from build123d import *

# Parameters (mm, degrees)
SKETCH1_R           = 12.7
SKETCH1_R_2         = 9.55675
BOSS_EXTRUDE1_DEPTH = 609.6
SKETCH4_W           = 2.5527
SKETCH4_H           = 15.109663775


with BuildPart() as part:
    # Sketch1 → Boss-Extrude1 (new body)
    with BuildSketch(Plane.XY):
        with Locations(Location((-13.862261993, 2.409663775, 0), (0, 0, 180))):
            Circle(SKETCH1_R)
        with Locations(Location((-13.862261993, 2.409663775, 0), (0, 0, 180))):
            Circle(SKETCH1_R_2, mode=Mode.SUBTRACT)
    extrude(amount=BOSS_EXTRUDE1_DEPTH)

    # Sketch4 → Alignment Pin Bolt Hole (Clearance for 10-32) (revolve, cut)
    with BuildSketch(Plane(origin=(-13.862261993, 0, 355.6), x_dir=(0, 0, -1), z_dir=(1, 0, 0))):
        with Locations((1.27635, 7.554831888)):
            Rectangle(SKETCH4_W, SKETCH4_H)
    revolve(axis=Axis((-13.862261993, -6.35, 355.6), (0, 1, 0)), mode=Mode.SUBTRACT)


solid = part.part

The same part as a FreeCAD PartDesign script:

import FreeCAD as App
import Part
import Sketcher

V = App.Vector
Q = App.Units.Quantity

doc = App.newDocument("Part")
body = doc.addObject("PartDesign::Body", "Body")

sketch1 = body.newObject("Sketcher::SketchObject", "Sketch")
sketch1.AttachmentSupport = (doc.getObject("XY_Plane"), [""])
sketch1.MapMode = "FlatFace"
sketch1.addGeometry([
    Part.Circle(V(-14, 2, 0), V(0, 0, 1), 13),
    Part.Circle(V(-14, 2, 0), V(0, 0, 1), 10),
], False)
sketch1.addConstraint([
    Sketcher.Constraint("Coincident", 1, 3, 0, 3),
    Sketcher.Constraint("Diameter", 0, Q("1 in")),
    Sketcher.Constraint("Diameter", 1, Q("0.7525 in")),
    Sketcher.Constraint("DistanceX", 0, 3, -1, 1, 13.862262),
    Sketcher.Constraint("DistanceY", -1, 1, 0, 3, 2.409664),
])
pad1 = body.newObject("PartDesign::Pad", "Pad")
pad1.Profile = sketch1
pad1.Length = Q("24 in")

sketch2 = body.newObject("Sketcher::SketchObject", "Sketch001")
sketch2.AttachmentSupport = (doc.getObject("YZ_Plane"), [""])
sketch2.MapMode = "FlatFace"
sketch2.AttachmentOffset = App.Placement(V(0, 0, -13.862262), App.Rotation())
sketch2.addGeometry([
    Part.LineSegment(V(15.1, 355.6, 0), V(0, 355.6, 0)),
    Part.LineSegment(V(0, 355.6, 0), V(0, 353, 0)),
    Part.LineSegment(V(0, 353, 0), V(15.1, 353, 0)),
    Part.LineSegment(V(15.1, 353, 0), V(15.1, 355.6, 0)),
], False)
sketch2.addGeometry(Part.LineSegment(V(0, 355.6, 0), V(15.1, 355.6, 0)), True)
sketch2.addConstraint([
    Sketcher.Constraint("Coincident", 0, 2, 1, 1),
    Sketcher.Constraint("Coincident", 1, 2, 2, 1),
    Sketcher.Constraint("Coincident", 2, 2, 3, 1),
    Sketcher.Constraint("Coincident", 3, 2, 0, 1),
    Sketcher.Constraint("Horizontal", 0),
    Sketcher.Constraint("Vertical", 1),
    Sketcher.Constraint("Horizontal", 2),
    Sketcher.Constraint("Vertical", 3),
    Sketcher.Constraint("Horizontal", 4),
    Sketcher.Constraint("Coincident", 4, 1, 0, 2),
    Sketcher.Constraint("PointOnObject", 0, 2, -2),
    Sketcher.Constraint("Vertical", 2, 2, 4, 2),
    Sketcher.Constraint("DistanceY", -1, 1, 0, 2, Q("14 in")),
    Sketcher.Constraint("DistanceY", 1, 2, 1, 1, Q("0.1005 in")),
    Sketcher.Constraint("DistanceX", 0, 2, 0, 1, 15.109664),
])
groove = body.newObject("PartDesign::Groove", "Groove")
groove.Profile = sketch2
groove.ReferenceAxis = (sketch2, ["Axis0"])
groove.Angle = 360

doc.recompute()
